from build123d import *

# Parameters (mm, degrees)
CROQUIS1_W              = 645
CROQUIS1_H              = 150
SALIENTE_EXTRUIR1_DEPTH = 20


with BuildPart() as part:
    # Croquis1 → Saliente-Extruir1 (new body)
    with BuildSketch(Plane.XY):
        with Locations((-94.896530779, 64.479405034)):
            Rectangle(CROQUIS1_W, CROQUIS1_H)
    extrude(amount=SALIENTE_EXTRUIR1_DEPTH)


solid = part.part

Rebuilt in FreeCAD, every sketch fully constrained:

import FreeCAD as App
import Part
import Sketcher
from FreeCAD import Vector
Q = App.Units.Quantity

doc = App.newDocument("Part")
body = doc.addObject("PartDesign::Body", "Body")

sketch1 = body.newObject("Sketcher::SketchObject", "Sketch")
sketch1.AttachmentSupport = (doc.getObject("XY_Plane"), [""])
sketch1.MapMode = "FlatFace"
sketch1.addGeometry(Part.LineSegment(Vector(-417, 139, 0), Vector(-417, -11, 0)), False)
sketch1.addGeometry(Part.LineSegment(Vector(-417, -11, 0), Vector(228, -11, 0)), False)
sketch1.addGeometry(Part.LineSegment(Vector(228, -11, 0), Vector(228, 139, 0)), False)
sketch1.addGeometry(Part.LineSegment(Vector(228, 139, 0), Vector(-417, 139, 0)), False)
sketch1.addConstraint(Sketcher.Constraint("Coincident", 0, 2, 1, 1))
sketch1.addConstraint(Sketcher.Constraint("Coincident", 1, 2, 2, 1))
sketch1.addConstraint(Sketcher.Constraint("Coincident", 2, 2, 3, 1))
sketch1.addConstraint(Sketcher.Constraint("Coincident", 3, 2, 0, 1))
sketch1.addConstraint(Sketcher.Constraint("Vertical", 0))
sketch1.addConstraint(Sketcher.Constraint("Horizontal", 1))
sketch1.addConstraint(Sketcher.Constraint("Vertical", 2))
sketch1.addConstraint(Sketcher.Constraint("Horizontal", 3))
sketch1.addConstraint(Sketcher.Constraint("DistanceX", 1, 1, 1, 2, Q("645 mm")))
sketch1.addConstraint(Sketcher.Constraint("DistanceY", 0, 2, 0, 1, Q("150 mm")))
sketch1.addConstraint(Sketcher.Constraint("DistanceX", 0, 2, -1, 1, Q("417.396531 mm")))
sketch1.addConstraint(Sketcher.Constraint("DistanceY", 0, 2, -1, 1, Q("10.520595 mm")))
pad1 = body.newObject("PartDesign::Pad", "Pad")
pad1.Profile = sketch1
pad1.Length = 20

doc.recompute()
